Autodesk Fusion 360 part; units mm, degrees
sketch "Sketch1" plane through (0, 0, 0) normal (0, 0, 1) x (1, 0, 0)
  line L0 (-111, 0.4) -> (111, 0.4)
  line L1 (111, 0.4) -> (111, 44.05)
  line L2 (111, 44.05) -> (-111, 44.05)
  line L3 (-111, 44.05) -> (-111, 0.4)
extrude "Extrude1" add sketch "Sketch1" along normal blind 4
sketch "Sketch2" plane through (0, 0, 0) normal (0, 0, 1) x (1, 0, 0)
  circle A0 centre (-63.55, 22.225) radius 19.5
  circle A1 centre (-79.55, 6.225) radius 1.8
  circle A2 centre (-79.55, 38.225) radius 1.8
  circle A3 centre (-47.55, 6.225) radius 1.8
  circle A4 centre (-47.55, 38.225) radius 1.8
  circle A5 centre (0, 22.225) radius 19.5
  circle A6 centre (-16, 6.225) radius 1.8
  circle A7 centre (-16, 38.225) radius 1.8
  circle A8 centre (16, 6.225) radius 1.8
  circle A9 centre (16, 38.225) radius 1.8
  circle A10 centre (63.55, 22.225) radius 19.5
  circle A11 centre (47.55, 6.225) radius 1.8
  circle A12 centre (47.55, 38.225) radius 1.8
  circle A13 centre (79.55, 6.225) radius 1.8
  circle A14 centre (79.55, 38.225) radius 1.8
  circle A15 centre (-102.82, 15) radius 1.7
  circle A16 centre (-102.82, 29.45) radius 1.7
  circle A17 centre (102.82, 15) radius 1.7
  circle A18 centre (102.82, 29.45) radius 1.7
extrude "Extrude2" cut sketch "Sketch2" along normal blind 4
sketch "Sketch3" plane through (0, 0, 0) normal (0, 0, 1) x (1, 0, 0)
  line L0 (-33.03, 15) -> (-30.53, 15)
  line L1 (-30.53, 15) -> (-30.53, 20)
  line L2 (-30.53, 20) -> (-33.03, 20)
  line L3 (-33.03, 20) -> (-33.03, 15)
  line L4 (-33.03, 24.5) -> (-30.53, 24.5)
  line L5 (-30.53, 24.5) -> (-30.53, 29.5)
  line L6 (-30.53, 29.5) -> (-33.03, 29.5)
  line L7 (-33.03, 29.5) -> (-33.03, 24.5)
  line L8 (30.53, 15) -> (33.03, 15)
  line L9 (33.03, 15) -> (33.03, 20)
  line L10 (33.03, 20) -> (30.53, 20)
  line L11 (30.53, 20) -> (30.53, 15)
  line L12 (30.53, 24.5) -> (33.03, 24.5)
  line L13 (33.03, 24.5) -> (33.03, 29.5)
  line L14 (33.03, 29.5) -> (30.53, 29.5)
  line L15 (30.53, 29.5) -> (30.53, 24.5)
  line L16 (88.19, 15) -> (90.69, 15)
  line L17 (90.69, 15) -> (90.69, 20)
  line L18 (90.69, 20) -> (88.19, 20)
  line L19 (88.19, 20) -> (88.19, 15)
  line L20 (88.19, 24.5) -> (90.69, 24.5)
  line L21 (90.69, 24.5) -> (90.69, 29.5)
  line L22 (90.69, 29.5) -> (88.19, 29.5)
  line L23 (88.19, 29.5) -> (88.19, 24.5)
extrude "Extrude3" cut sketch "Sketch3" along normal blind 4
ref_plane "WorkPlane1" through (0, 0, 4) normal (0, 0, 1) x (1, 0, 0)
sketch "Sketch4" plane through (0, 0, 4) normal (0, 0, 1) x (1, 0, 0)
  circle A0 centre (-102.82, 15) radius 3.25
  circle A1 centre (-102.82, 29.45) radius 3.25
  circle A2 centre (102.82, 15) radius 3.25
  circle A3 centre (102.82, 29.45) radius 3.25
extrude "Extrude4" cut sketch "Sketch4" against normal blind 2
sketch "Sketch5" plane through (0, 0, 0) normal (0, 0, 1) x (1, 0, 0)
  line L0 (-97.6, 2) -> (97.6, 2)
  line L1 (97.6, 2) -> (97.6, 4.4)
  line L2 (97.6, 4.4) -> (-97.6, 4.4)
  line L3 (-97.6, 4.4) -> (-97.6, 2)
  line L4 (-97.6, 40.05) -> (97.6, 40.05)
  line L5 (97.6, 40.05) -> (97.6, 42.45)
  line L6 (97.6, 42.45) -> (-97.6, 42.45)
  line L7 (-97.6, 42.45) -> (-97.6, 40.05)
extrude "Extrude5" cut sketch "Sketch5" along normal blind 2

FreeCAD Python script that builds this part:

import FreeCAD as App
import Part
import Sketcher

V = App.Vector
Q = App.Units.Quantity

doc = App.newDocument("Part")
params = doc.addObject("Spreadsheet::Sheet", "Params")
for row, (alias, value) in enumerate([
    ("sketch1_width", "222 mm"),
    ("sketch1_height", "43.65 mm"),
    ("pad1_length", "4 mm"),
    ("sketch2_diameter", "39 mm"),
    ("sketch2_diameter2", "3.6 mm"),
    ("sketch2_diameter3", "3.4 mm"),
    ("pocket1_length", "4 mm"),
    ("sketch3_height", "5 mm"),
    ("sketch3_width", "2.5 mm"),
    ("pocket2_length", "4 mm"),
    ("sketch4_diameter", "6.5 mm"),
    ("pocket3_length", "2 mm"),
    ("sketch5_width", "195.2 mm"),
    ("sketch5_height", "2.4 mm"),
    ("pocket4_length", "2 mm"),
], start=1):
    params.set(f"A{row}", alias)
    params.set(f"B{row}", "=" + value)
    params.setAlias(f"B{row}", alias)

body = doc.addObject("PartDesign::Body", "Body")

# Sketch on XY plane
sketch1 = body.newObject("Sketcher::SketchObject", "Sketch")
sketch1.AttachmentSupport = (doc.getObject("XY_Plane"), [""])
sketch1.MapMode = "FlatFace"
sketch1.addGeometry(Part.LineSegment(V(-111, 44, 0), V(-111, 0, 0)), False)
sketch1.addGeometry(Part.LineSegment(V(-111, 0, 0), V(111, 0, 0)), False)
sketch1.addGeometry(Part.LineSegment(V(111, 0, 0), V(111, 44, 0)), False)
sketch1.addGeometry(Part.LineSegment(V(111, 44, 0), V(-111, 44, 0)), False)
sketch1.addConstraint(Sketcher.Constraint("Coincident", 0, 2, 1, 1))
sketch1.addConstraint(Sketcher.Constraint("Coincident", 1, 2, 2, 1))
sketch1.addConstraint(Sketcher.Constraint("Coincident", 2, 2, 3, 1))
sketch1.addConstraint(Sketcher.Constraint("Coincident", 3, 2, 0, 1))
sketch1.addConstraint(Sketcher.Constraint("Vertical", 0))
sketch1.addConstraint(Sketcher.Constraint("Horizontal", 1))
sketch1.addConstraint(Sketcher.Constraint("Vertical", 2))
sketch1.addConstraint(Sketcher.Constraint("Horizontal", 3))
sketch1.addConstraint(Sketcher.Constraint("DistanceX", 1, 1, 1, 2, Q("222 mm")))
sketch1.addConstraint(Sketcher.Constraint("DistanceX", 0, 2, -1, 1, Q("111 mm")))
sketch1.addConstraint(Sketcher.Constraint("DistanceY", 0, 2, 0, 1, Q("43.65 mm")))
sketch1.addConstraint(Sketcher.Constraint("DistanceY", -1, 1, 0, 2, Q("0.4 mm")))
sketch1.setExpression("Constraints[8]", "Params.sketch1_width")
sketch1.setExpression("Constraints[10]", "Params.sketch1_height")
pad1 = body.newObject("PartDesign::Pad", "Pad")
pad1.Profile = sketch1
pad1.setExpression("Length", "Params.pad1_length")

# Sketch on XY plane
sketch2 = body.newObject("Sketcher::SketchObject", "Sketch001")
sketch2.AttachmentSupport = (doc.getObject("XY_Plane"), [""])
sketch2.MapMode = "FlatFace"
sketch2.addGeometry(Part.Circle(V(-63.5, 22.2, 0), V(0, 0, 1), 19.5), False)
sketch2.addGeometry(Part.Circle(V(-79.5, 6.2, 0), V(0, 0, 1), 1.8), False)
sketch2.addGeometry(Part.Circle(V(-79.5, 38.2, 0), V(0, 0, 1), 1.8), False)
sketch2.addGeometry(Part.Circle(V(-47.5, 6.2, 0), V(0, 0, 1), 1.8), False)
sketch2.addGeometry(Part.Circle(V(-47.5, 38.2, 0), V(0, 0, 1), 1.8), False)
sketch2.addGeometry(Part.Circle(V(0, 22.2, 0), V(0, 0, 1), 19.5), False)
sketch2.addGeometry(Part.Circle(V(-16, 6.2, 0), V(0, 0, 1), 1.8), False)
sketch2.addGeometry(Part.Circle(V(-16, 38.2, 0), V(0, 0, 1), 1.8), False)
sketch2.addGeometry(Part.Circle(V(16, 6.2, 0), V(0, 0, 1), 1.8), False)
sketch2.addGeometry(Part.Circle(V(16, 38.2, 0), V(0, 0, 1), 1.8), False)
sketch2.addGeometry(Part.Circle(V(63.5, 22.2, 0), V(0, 0, 1), 19.5), False)
sketch2.addGeometry(Part.Circle(V(47.5, 6.2, 0), V(0, 0, 1), 1.8), False)
sketch2.addGeometry(Part.Circle(V(47.5, 38.2, 0), V(0, 0, 1), 1.8), False)
sketch2.addGeometry(Part.Circle(V(79.5, 6.2, 0), V(0, 0, 1), 1.8), False)
sketch2.addGeometry(Part.Circle(V(79.5, 38.2, 0), V(0, 0, 1), 1.8), False)
sketch2.addGeometry(Part.Circle(V(-102.8, 15, 0), V(0, 0, 1), 1.7), False)
sketch2.addGeometry(Part.Circle(V(-102.8, 29.4, 0), V(0, 0, 1), 1.7), False)
sketch2.addGeometry(Part.Circle(V(102.8, 15, 0), V(0, 0, 1), 1.7), False)
sketch2.addGeometry(Part.Circle(V(102.8, 29.4, 0), V(0, 0, 1), 1.7), False)
sketch2.addConstraint(Sketcher.Constraint("Equal", 1, 2))
sketch2.addConstraint(Sketcher.Constraint("Equal", 2, 3))
sketch2.addConstraint(Sketcher.Constraint("Equal", 3, 4))
sketch2.addConstraint(Sketcher.Constraint("Equal", 0, 5))
sketch2.addConstraint(Sketcher.Constraint("Equal", 4, 6))
sketch2.addConstraint(Sketcher.Constraint("Equal", 6, 7))
sketch2.addConstraint(Sketcher.Constraint("Equal", 7, 8))
sketch2.addConstraint(Sketcher.Constraint("Equal", 8, 9))
sketch2.addConstraint(Sketcher.Constraint("Equal", 5, 10))
sketch2.addConstraint(Sketcher.Constraint("Equal", 9, 11))
sketch2.addConstraint(Sketcher.Constraint("Equal", 11, 12))
sketch2.addConstraint(Sketcher.Constraint("Equal", 12, 13))
sketch2.addConstraint(Sketcher.Constraint("Equal", 13, 14))
sketch2.addConstraint(Sketcher.Constraint("Equal", 15, 16))
sketch2.addConstraint(Sketcher.Constraint("Equal", 16, 17))
sketch2.addConstraint(Sketcher.Constraint("Equal", 17, 18))
sketch2.addConstraint(Sketcher.Constraint("Symmetric", 6, 3, 8, 3, -2))
sketch2.addConstraint(Sketcher.Constraint("Symmetric", 7, 3, 9, 3, -2))
sketch2.addConstraint(Sketcher.Constraint("Symmetric", 0, 3, 10, 3, -2))
sketch2.addConstraint(Sketcher.Constraint("Symmetric", 3, 3, 11, 3, -2))
sketch2.addConstraint(Sketcher.Constraint("Symmetric", 4, 3, 12, 3, -2))
sketch2.addConstraint(Sketcher.Constraint("Symmetric", 1, 3, 13, 3, -2))
sketch2.addConstraint(Sketcher.Constraint("Symmetric", 2, 3, 14, 3, -2))
sketch2.addConstraint(Sketcher.Constraint("Symmetric", 15, 3, 17, 3, -2))
sketch2.addConstraint(Sketcher.Constraint("Symmetric", 16, 3, 18, 3, -2))
sketch2.addConstraint(Sketcher.Constraint("PointOnObject", 5, 3, -2))
sketch2.addConstraint(Sketcher.Constraint("Horizontal", 1, 3, 3, 3))
sketch2.addConstraint(Sketcher.Constraint("Horizontal", 2, 3, 4, 3))
sketch2.addConstraint(Sketcher.Constraint("Horizontal", 0, 3, 5, 3))
sketch2.addConstraint(Sketcher.Constraint("Horizontal", 3, 3, 6, 3))
sketch2.addConstraint(Sketcher.Constraint("Horizontal", 4, 3, 7, 3))
sketch2.addConstraint(Sketcher.Constraint("Vertical", 1, 3, 2, 3))
sketch2.addConstraint(Sketcher.Constraint("Vertical", 3, 3, 4, 3))
sketch2.addConstraint(Sketcher.Constraint("Vertical", 6, 3, 7, 3))
sketch2.addConstraint(Sketcher.Constraint("Vertical", 15, 3, 16, 3))
sketch2.addConstraint(Sketcher.Constraint("Diameter", 0, Q("39 mm")))
sketch2.addConstraint(Sketcher.Constraint("Diameter", 1, Q("3.6 mm")))
sketch2.addConstraint(Sketcher.Constraint("Diameter", 15, Q("3.4 mm")))
sketch2.addConstraint(Sketcher.Constraint("DistanceX", 6, 3, -1, 1, Q("16 mm")))
sketch2.addConstraint(Sketcher.Constraint("DistanceY", -1, 1, 15, 3, Q("15 mm")))
sketch2.addConstraint(Sketcher.Constraint("DistanceX", 1, 3, 0, 3, Q("16 mm")))
sketch2.addConstraint(Sketcher.Constraint("DistanceY", 1, 3, 0, 3, Q("16 mm")))
sketch2.addConstraint(Sketcher.Constraint("DistanceY", 0, 3, 2, 3, Q("16 mm")))
sketch2.addConstraint(Sketcher.Constraint("DistanceX", 0, 3, 3, 3, Q("16 mm")))
sketch2.addConstraint(Sketcher.Constraint("DistanceX", 0, 3, -1, 1, Q("63.55 mm")))
sketch2.addConstraint(Sketcher.Constraint("DistanceX", 15, 3, -1, 1, Q("102.82 mm")))
sketch2.addConstraint(Sketcher.Constraint("DistanceY", -1, 1, 16, 3, Q("29.45 mm")))
sketch2.addConstraint(Sketcher.Constraint("DistanceY", -1, 1, 0, 3, Q("22.225 mm")))
sketch2.setExpression("Constraints[35]", "Params.sketch2_diameter")
sketch2.setExpression("Constraints[36]", "Params.sketch2_diameter2")
sketch2.setExpression("Constraints[37]", "Params.sketch2_diameter3")
pocket1 = body.newObject("PartDesign::Pocket", "Pocket")
pocket1.Profile = sketch2
pocket1.setExpression("Length", "Params.pocket1_length")
pocket1.Reversed = True

# Sketch on XY plane
sketch3 = body.newObject("Sketcher::SketchObject", "Sketch002")
sketch3.AttachmentSupport = (doc.getObject("XY_Plane"), [""])
sketch3.MapMode = "FlatFace"
sketch3.addGeometry(Part.LineSegment(V(-33, 20, 0), V(-33, 15, 0)), False)
sketch3.addGeometry(Part.LineSegment(V(-33, 15, 0), V(-30.5, 15, 0)), False)
sketch3.addGeometry(Part.LineSegment(V(-30.5, 15, 0), V(-30.5, 20, 0)), False)
sketch3.addGeometry(Part.LineSegment(V(-30.5, 20, 0), V(-33, 20, 0)), False)
sketch3.addGeometry(Part.LineSegment(V(-33, 29.5, 0), V(-33, 24.5, 0)), False)
sketch3.addGeometry(Part.LineSegment(V(-33, 24.5, 0), V(-30.5, 24.5, 0)), False)
sketch3.addGeometry(Part.LineSegment(V(-30.5, 24.5, 0), V(-30.5, 29.5, 0)), False)
sketch3.addGeometry(Part.LineSegment(V(-30.5, 29.5, 0), V(-33, 29.5, 0)), False)
sketch3.addGeometry(Part.LineSegment(V(30.5, 20, 0), V(30.5, 15, 0)), False)
sketch3.addGeometry(Part.LineSegment(V(30.5, 15, 0), V(33, 15, 0)), False)
sketch3.addGeometry(Part.LineSegment(V(33, 15, 0), V(33, 20, 0)), False)
sketch3.addGeometry(Part.LineSegment(V(33, 20, 0), V(30.5, 20, 0)), False)
sketch3.addGeometry(Part.LineSegment(V(30.5, 29.5, 0), V(30.5, 24.5, 0)), False)
sketch3.addGeometry(Part.LineSegment(V(30.5, 24.5, 0), V(33, 24.5, 0)), False)
sketch3.addGeometry(Part.LineSegment(V(33, 24.5, 0), V(33, 29.5, 0)), False)
sketch3.addGeometry(Part.LineSegment(V(33, 29.5, 0), V(30.5, 29.5, 0)), False)
sketch3.addGeometry(Part.LineSegment(V(88.2, 20, 0), V(88.2, 15, 0)), False)
sketch3.addGeometry(Part.LineSegment(V(88.2, 15, 0), V(90.7, 15, 0)), False)
sketch3.addGeometry(Part.LineSegment(V(90.7, 15, 0), V(90.7, 20, 0)), False)
sketch3.addGeometry(Part.LineSegment(V(90.7, 20, 0), V(88.2, 20, 0)), False)
sketch3.addGeometry(Part.LineSegment(V(88.2, 29.5, 0), V(88.2, 24.5, 0)), False)
sketch3.addGeometry(Part.LineSegment(V(88.2, 24.5, 0), V(90.7, 24.5, 0)), False)
sketch3.addGeometry(Part.LineSegment(V(90.7, 24.5, 0), V(90.7, 29.5, 0)), False)
sketch3.addGeometry(Part.LineSegment(V(90.7, 29.5, 0), V(88.2, 29.5, 0)), False)
sketch3.addConstraint(Sketcher.Constraint("Coincident", 0, 2, 1, 1))
sketch3.addConstraint(Sketcher.Constraint("Coincident", 1, 2, 2, 1))
sketch3.addConstraint(Sketcher.Constraint("Coincident", 2, 2, 3, 1))
sketch3.addConstraint(Sketcher.Constraint("Coincident", 3, 2, 0, 1))
sketch3.addConstraint(Sketcher.Constraint("Coincident", 4, 2, 5, 1))
sketch3.addConstraint(Sketcher.Constraint("Coincident", 5, 2, 6, 1))
sketch3.addConstraint(Sketcher.Constraint("Coincident", 6, 2, 7, 1))
sketch3.addConstraint(Sketcher.Constraint("Coincident", 7, 2, 4, 1))
sketch3.addConstraint(Sketcher.Constraint("Coincident", 8, 2, 9, 1))
sketch3.addConstraint(Sketcher.Constraint("Coincident", 9, 2, 10, 1))
sketch3.addConstraint(Sketcher.Constraint("Coincident", 10, 2, 11, 1))
sketch3.addConstraint(Sketcher.Constraint("Coincident", 11, 2, 8, 1))
sketch3.addConstraint(Sketcher.Constraint("Coincident", 12, 2, 13, 1))
sketch3.addConstraint(Sketcher.Constraint("Coincident", 13, 2, 14, 1))
sketch3.addConstraint(Sketcher.Constraint("Coincident", 14, 2, 15, 1))
sketch3.addConstraint(Sketcher.Constraint("Coincident", 15, 2, 12, 1))
sketch3.addConstraint(Sketcher.Constraint("Coincident", 16, 2, 17, 1))
sketch3.addConstraint(Sketcher.Constraint("Coincident", 17, 2, 18, 1))
sketch3.addConstraint(Sketcher.Constraint("Coincident", 18, 2, 19, 1))
sketch3.addConstraint(Sketcher.Constraint("Coincident", 19, 2, 16, 1))
sketch3.addConstraint(Sketcher.Constraint("Coincident", 20, 2, 21, 1))
sketch3.addConstraint(Sketcher.Constraint("Coincident", 21, 2, 22, 1))
sketch3.addConstraint(Sketcher.Constraint("Coincident", 22, 2, 23, 1))
sketch3.addConstraint(Sketcher.Constraint("Coincident", 23, 2, 20, 1))
sketch3.addConstraint(Sketcher.Constraint("Vertical", 0))
sketch3.addConstraint(Sketcher.Constraint("Horizontal", 1))
sketch3.addConstraint(Sketcher.Constraint("Vertical", 2))
sketch3.addConstraint(Sketcher.Constraint("Horizontal", 3))
sketch3.addConstraint(Sketcher.Constraint("Vertical", 4))
sketch3.addConstraint(Sketcher.Constraint("Horizontal", 5))
sketch3.addConstraint(Sketcher.Constraint("Vertical", 6))
sketch3.addConstraint(Sketcher.Constraint("Horizontal", 7))
sketch3.addConstraint(Sketcher.Constraint("Vertical", 8))
sketch3.addConstraint(Sketcher.Constraint("Horizontal", 9))
sketch3.addConstraint(Sketcher.Constraint("Vertical", 10))
sketch3.addConstraint(Sketcher.Constraint("Horizontal", 11))
sketch3.addConstraint(Sketcher.Constraint("Vertical", 12))
sketch3.addConstraint(Sketcher.Constraint("Horizontal", 13))
sketch3.addConstraint(Sketcher.Constraint("Vertical", 14))
sketch3.addConstraint(Sketcher.Constraint("Horizontal", 15))
sketch3.addConstraint(Sketcher.Constraint("Vertical", 16))
sketch3.addConstraint(Sketcher.Constraint("Horizontal", 17))
sketch3.addConstraint(Sketcher.Constraint("Vertical", 18))
sketch3.addConstraint(Sketcher.Constraint("Horizontal", 19))
sketch3.addConstraint(Sketcher.Constraint("Vertical", 20))
sketch3.addConstraint(Sketcher.Constraint("Horizontal", 21))
sketch3.addConstraint(Sketcher.Constraint("Vertical", 22))
sketch3.addConstraint(Sketcher.Constraint("Horizontal", 23))
sketch3.addConstraint(Sketcher.Constraint("Symmetric", 1, 2, 8, 2, -2))
sketch3.addConstraint(Sketcher.Constraint("Symmetric", 3, 2, 10, 2, -2))
sketch3.addConstraint(Sketcher.Constraint("Symmetric", 5, 2, 12, 2, -2))
sketch3.addConstraint(Sketcher.Constraint("Symmetric", 7, 2, 14, 2, -2))
sketch3.addConstraint(Sketcher.Constraint("Horizontal", 9, 2, 16, 2))
sketch3.addConstraint(Sketcher.Constraint("Horizontal", 11, 2, 18, 2))
sketch3.addConstraint(Sketcher.Constraint("Horizontal", 13, 2, 20, 2))
sketch3.addConstraint(Sketcher.Constraint("Horizontal", 15, 2, 22, 2))
sketch3.addConstraint(Sketcher.Constraint("Vertical", 3, 2, 4, 2))
sketch3.addConstraint(Sketcher.Constraint("Vertical", 2, 2, 5, 2))
sketch3.addConstraint(Sketcher.Constraint("Vertical", 19, 2, 20, 2))
sketch3.addConstraint(Sketcher.Constraint("Vertical", 18, 2, 21, 2))
sketch3.addConstraint(Sketcher.Constraint("Equal", 15, 17))
sketch3.addConstraint(Sketcher.Constraint("Equal", 2, 4))
sketch3.addConstraint(Sketcher.Constraint("DistanceY", 0, 2, 0, 1, Q("5 mm")))
sketch3.addConstraint(Sketcher.Constraint("DistanceX", 1, 1, 1, 2, Q("2.5 mm")))
sketch3.addConstraint(Sketcher.Constraint("DistanceY", -1, 1, 0, 2, Q("15 mm")))
sketch3.addConstraint(Sketcher.Constraint("DistanceY", -1, 1, 4, 2, Q("24.5 mm")))
sketch3.addConstraint(Sketcher.Constraint("DistanceX", 0, 2, -1, 1, Q("33.03 mm")))
sketch3.addConstraint(Sketcher.Constraint("DistanceX", -1, 1, 16, 2, Q("88.19 mm")))
sketch3.setExpression("Constraints[62]", "Params.sketch3_height")
sketch3.setExpression("Constraints[63]", "Params.sketch3_width")
pocket2 = body.newObject("PartDesign::Pocket", "Pocket001")
pocket2.Profile = sketch3
pocket2.setExpression("Length", "Params.pocket2_length")
pocket2.Reversed = True

# Sketch on XY plane
sketch4 = body.newObject("Sketcher::SketchObject", "Sketch003")
sketch4.AttachmentSupport = (doc.getObject("XY_Plane"), [""])
sketch4.MapMode = "FlatFace"
sketch4.AttachmentOffset = App.Placement(V(0, 0, 4), App.Rotation())
sketch4.addGeometry(Part.Circle(V(-102.8, 15, 0), V(0, 0, 1), 3.2), False)
sketch4.addGeometry(Part.Circle(V(-102.8, 29.4, 0), V(0, 0, 1), 3.2), False)
sketch4.addGeometry(Part.Circle(V(102.8, 15, 0), V(0, 0, 1), 3.2), False)
sketch4.addGeometry(Part.Circle(V(102.8, 29.4, 0), V(0, 0, 1), 3.2), False)
sketch4.addConstraint(Sketcher.Constraint("Equal", 0, 1))
sketch4.addConstraint(Sketcher.Constraint("Equal", 1, 2))
sketch4.addConstraint(Sketcher.Constraint("Equal", 2, 3))
sketch4.addConstraint(Sketcher.Constraint("Symmetric", 0, 3, 2, 3, -2))
sketch4.addConstraint(Sketcher.Constraint("Symmetric", 1, 3, 3, 3, -2))
sketch4.addConstraint(Sketcher.Constraint("Vertical", 0, 3, 1, 3))
sketch4.addConstraint(Sketcher.Constraint("Diameter", 0, Q("6.5 mm")))
sketch4.addConstraint(Sketcher.Constraint("DistanceY", -1, 1, 0, 3, Q("15 mm")))
sketch4.addConstraint(Sketcher.Constraint("DistanceX", 0, 3, -1, 1, Q("102.82 mm")))
sketch4.addConstraint(Sketcher.Constraint("DistanceY", -1, 1, 1, 3, Q("29.45 mm")))
sketch4.setExpression("Constraints[6]", "Params.sketch4_diameter")
pocket3 = body.newObject("PartDesign::Pocket", "Pocket002")
pocket3.Profile = sketch4
pocket3.setExpression("Length", "Params.pocket3_length")

# Sketch on XY plane
sketch5 = body.newObject("Sketcher::SketchObject", "Sketch004")
sketch5.AttachmentSupport = (doc.getObject("XY_Plane"), [""])
sketch5.MapMode = "FlatFace"
sketch5.addGeometry(Part.LineSegment(V(-97.6, 4.4, 0), V(-97.6, 2, 0)), False)
sketch5.addGeometry(Part.LineSegment(V(-97.6, 2, 0), V(97.6, 2, 0)), False)
sketch5.addGeometry(Part.LineSegment(V(97.6, 2, 0), V(97.6, 4.4, 0)), False)
sketch5.addGeometry(Part.LineSegment(V(97.6, 4.4, 0), V(-97.6, 4.4, 0)), False)
sketch5.addGeometry(Part.LineSegment(V(-97.6, 42.5, 0), V(-97.6, 40, 0)), False)
sketch5.addGeometry(Part.LineSegment(V(-97.6, 40, 0), V(97.6, 40, 0)), False)
sketch5.addGeometry(Part.LineSegment(V(97.6, 40, 0), V(97.6, 42.5, 0)), False)
sketch5.addGeometry(Part.LineSegment(V(97.6, 42.5, 0), V(-97.6, 42.5, 0)), False)
sketch5.addConstraint(Sketcher.Constraint("Coincident", 0, 2, 1, 1))
sketch5.addConstraint(Sketcher.Constraint("Coincident", 1, 2, 2, 1))
sketch5.addConstraint(Sketcher.Constraint("Coincident", 2, 2, 3, 1))
sketch5.addConstraint(Sketcher.Constraint("Coincident", 3, 2, 0, 1))
sketch5.addConstraint(Sketcher.Constraint("Coincident", 4, 2, 5, 1))
sketch5.addConstraint(Sketcher.Constraint("Coincident", 5, 2, 6, 1))
sketch5.addConstraint(Sketcher.Constraint("Coincident", 6, 2, 7, 1))
sketch5.addConstraint(Sketcher.Constraint("Coincident", 7, 2, 4, 1))
sketch5.addConstraint(Sketcher.Constraint("Vertical", 0))
sketch5.addConstraint(Sketcher.Constraint("Horizontal", 1))
sketch5.addConstraint(Sketcher.Constraint("Vertical", 2))
sketch5.addConstraint(Sketcher.Constraint("Horizontal", 3))
sketch5.addConstraint(Sketcher.Constraint("Vertical", 4))
sketch5.addConstraint(Sketcher.Constraint("Horizontal", 5))
sketch5.addConstraint(Sketcher.Constraint("Vertical", 6))
sketch5.addConstraint(Sketcher.Constraint("Horizontal", 7))
sketch5.addConstraint(Sketcher.Constraint("Vertical", 3, 2, 4, 2))
sketch5.addConstraint(Sketcher.Constraint("Vertical", 2, 2, 5, 2))
sketch5.addConstraint(Sketcher.Constraint("Equal", 2, 4))
sketch5.addConstraint(Sketcher.Constraint("DistanceX", 1, 1, 1, 2, Q("195.2 mm")))
sketch5.addConstraint(Sketcher.Constraint("DistanceY", 0, 2, 0, 1, Q("2.4 mm")))
sketch5.addConstraint(Sketcher.Constraint("DistanceY", -1, 1, 0, 2, Q("2 mm")))
sketch5.addConstraint(Sketcher.Constraint("DistanceX", 0, 2, -1, 1, Q("97.6 mm")))
sketch5.addConstraint(Sketcher.Constraint("DistanceY", -1, 1, 4, 2, Q("40.05 mm")))
sketch5.setExpression("Constraints[19]", "Params.sketch5_width")
sketch5.setExpression("Constraints[20]", "Params.sketch5_height")
pocket4 = body.newObject("PartDesign::Pocket", "Pocket003")
pocket4.Profile = sketch5
pocket4.setExpression("Length", "Params.pocket4_length")
pocket4.Reversed = True

doc.recompute()
